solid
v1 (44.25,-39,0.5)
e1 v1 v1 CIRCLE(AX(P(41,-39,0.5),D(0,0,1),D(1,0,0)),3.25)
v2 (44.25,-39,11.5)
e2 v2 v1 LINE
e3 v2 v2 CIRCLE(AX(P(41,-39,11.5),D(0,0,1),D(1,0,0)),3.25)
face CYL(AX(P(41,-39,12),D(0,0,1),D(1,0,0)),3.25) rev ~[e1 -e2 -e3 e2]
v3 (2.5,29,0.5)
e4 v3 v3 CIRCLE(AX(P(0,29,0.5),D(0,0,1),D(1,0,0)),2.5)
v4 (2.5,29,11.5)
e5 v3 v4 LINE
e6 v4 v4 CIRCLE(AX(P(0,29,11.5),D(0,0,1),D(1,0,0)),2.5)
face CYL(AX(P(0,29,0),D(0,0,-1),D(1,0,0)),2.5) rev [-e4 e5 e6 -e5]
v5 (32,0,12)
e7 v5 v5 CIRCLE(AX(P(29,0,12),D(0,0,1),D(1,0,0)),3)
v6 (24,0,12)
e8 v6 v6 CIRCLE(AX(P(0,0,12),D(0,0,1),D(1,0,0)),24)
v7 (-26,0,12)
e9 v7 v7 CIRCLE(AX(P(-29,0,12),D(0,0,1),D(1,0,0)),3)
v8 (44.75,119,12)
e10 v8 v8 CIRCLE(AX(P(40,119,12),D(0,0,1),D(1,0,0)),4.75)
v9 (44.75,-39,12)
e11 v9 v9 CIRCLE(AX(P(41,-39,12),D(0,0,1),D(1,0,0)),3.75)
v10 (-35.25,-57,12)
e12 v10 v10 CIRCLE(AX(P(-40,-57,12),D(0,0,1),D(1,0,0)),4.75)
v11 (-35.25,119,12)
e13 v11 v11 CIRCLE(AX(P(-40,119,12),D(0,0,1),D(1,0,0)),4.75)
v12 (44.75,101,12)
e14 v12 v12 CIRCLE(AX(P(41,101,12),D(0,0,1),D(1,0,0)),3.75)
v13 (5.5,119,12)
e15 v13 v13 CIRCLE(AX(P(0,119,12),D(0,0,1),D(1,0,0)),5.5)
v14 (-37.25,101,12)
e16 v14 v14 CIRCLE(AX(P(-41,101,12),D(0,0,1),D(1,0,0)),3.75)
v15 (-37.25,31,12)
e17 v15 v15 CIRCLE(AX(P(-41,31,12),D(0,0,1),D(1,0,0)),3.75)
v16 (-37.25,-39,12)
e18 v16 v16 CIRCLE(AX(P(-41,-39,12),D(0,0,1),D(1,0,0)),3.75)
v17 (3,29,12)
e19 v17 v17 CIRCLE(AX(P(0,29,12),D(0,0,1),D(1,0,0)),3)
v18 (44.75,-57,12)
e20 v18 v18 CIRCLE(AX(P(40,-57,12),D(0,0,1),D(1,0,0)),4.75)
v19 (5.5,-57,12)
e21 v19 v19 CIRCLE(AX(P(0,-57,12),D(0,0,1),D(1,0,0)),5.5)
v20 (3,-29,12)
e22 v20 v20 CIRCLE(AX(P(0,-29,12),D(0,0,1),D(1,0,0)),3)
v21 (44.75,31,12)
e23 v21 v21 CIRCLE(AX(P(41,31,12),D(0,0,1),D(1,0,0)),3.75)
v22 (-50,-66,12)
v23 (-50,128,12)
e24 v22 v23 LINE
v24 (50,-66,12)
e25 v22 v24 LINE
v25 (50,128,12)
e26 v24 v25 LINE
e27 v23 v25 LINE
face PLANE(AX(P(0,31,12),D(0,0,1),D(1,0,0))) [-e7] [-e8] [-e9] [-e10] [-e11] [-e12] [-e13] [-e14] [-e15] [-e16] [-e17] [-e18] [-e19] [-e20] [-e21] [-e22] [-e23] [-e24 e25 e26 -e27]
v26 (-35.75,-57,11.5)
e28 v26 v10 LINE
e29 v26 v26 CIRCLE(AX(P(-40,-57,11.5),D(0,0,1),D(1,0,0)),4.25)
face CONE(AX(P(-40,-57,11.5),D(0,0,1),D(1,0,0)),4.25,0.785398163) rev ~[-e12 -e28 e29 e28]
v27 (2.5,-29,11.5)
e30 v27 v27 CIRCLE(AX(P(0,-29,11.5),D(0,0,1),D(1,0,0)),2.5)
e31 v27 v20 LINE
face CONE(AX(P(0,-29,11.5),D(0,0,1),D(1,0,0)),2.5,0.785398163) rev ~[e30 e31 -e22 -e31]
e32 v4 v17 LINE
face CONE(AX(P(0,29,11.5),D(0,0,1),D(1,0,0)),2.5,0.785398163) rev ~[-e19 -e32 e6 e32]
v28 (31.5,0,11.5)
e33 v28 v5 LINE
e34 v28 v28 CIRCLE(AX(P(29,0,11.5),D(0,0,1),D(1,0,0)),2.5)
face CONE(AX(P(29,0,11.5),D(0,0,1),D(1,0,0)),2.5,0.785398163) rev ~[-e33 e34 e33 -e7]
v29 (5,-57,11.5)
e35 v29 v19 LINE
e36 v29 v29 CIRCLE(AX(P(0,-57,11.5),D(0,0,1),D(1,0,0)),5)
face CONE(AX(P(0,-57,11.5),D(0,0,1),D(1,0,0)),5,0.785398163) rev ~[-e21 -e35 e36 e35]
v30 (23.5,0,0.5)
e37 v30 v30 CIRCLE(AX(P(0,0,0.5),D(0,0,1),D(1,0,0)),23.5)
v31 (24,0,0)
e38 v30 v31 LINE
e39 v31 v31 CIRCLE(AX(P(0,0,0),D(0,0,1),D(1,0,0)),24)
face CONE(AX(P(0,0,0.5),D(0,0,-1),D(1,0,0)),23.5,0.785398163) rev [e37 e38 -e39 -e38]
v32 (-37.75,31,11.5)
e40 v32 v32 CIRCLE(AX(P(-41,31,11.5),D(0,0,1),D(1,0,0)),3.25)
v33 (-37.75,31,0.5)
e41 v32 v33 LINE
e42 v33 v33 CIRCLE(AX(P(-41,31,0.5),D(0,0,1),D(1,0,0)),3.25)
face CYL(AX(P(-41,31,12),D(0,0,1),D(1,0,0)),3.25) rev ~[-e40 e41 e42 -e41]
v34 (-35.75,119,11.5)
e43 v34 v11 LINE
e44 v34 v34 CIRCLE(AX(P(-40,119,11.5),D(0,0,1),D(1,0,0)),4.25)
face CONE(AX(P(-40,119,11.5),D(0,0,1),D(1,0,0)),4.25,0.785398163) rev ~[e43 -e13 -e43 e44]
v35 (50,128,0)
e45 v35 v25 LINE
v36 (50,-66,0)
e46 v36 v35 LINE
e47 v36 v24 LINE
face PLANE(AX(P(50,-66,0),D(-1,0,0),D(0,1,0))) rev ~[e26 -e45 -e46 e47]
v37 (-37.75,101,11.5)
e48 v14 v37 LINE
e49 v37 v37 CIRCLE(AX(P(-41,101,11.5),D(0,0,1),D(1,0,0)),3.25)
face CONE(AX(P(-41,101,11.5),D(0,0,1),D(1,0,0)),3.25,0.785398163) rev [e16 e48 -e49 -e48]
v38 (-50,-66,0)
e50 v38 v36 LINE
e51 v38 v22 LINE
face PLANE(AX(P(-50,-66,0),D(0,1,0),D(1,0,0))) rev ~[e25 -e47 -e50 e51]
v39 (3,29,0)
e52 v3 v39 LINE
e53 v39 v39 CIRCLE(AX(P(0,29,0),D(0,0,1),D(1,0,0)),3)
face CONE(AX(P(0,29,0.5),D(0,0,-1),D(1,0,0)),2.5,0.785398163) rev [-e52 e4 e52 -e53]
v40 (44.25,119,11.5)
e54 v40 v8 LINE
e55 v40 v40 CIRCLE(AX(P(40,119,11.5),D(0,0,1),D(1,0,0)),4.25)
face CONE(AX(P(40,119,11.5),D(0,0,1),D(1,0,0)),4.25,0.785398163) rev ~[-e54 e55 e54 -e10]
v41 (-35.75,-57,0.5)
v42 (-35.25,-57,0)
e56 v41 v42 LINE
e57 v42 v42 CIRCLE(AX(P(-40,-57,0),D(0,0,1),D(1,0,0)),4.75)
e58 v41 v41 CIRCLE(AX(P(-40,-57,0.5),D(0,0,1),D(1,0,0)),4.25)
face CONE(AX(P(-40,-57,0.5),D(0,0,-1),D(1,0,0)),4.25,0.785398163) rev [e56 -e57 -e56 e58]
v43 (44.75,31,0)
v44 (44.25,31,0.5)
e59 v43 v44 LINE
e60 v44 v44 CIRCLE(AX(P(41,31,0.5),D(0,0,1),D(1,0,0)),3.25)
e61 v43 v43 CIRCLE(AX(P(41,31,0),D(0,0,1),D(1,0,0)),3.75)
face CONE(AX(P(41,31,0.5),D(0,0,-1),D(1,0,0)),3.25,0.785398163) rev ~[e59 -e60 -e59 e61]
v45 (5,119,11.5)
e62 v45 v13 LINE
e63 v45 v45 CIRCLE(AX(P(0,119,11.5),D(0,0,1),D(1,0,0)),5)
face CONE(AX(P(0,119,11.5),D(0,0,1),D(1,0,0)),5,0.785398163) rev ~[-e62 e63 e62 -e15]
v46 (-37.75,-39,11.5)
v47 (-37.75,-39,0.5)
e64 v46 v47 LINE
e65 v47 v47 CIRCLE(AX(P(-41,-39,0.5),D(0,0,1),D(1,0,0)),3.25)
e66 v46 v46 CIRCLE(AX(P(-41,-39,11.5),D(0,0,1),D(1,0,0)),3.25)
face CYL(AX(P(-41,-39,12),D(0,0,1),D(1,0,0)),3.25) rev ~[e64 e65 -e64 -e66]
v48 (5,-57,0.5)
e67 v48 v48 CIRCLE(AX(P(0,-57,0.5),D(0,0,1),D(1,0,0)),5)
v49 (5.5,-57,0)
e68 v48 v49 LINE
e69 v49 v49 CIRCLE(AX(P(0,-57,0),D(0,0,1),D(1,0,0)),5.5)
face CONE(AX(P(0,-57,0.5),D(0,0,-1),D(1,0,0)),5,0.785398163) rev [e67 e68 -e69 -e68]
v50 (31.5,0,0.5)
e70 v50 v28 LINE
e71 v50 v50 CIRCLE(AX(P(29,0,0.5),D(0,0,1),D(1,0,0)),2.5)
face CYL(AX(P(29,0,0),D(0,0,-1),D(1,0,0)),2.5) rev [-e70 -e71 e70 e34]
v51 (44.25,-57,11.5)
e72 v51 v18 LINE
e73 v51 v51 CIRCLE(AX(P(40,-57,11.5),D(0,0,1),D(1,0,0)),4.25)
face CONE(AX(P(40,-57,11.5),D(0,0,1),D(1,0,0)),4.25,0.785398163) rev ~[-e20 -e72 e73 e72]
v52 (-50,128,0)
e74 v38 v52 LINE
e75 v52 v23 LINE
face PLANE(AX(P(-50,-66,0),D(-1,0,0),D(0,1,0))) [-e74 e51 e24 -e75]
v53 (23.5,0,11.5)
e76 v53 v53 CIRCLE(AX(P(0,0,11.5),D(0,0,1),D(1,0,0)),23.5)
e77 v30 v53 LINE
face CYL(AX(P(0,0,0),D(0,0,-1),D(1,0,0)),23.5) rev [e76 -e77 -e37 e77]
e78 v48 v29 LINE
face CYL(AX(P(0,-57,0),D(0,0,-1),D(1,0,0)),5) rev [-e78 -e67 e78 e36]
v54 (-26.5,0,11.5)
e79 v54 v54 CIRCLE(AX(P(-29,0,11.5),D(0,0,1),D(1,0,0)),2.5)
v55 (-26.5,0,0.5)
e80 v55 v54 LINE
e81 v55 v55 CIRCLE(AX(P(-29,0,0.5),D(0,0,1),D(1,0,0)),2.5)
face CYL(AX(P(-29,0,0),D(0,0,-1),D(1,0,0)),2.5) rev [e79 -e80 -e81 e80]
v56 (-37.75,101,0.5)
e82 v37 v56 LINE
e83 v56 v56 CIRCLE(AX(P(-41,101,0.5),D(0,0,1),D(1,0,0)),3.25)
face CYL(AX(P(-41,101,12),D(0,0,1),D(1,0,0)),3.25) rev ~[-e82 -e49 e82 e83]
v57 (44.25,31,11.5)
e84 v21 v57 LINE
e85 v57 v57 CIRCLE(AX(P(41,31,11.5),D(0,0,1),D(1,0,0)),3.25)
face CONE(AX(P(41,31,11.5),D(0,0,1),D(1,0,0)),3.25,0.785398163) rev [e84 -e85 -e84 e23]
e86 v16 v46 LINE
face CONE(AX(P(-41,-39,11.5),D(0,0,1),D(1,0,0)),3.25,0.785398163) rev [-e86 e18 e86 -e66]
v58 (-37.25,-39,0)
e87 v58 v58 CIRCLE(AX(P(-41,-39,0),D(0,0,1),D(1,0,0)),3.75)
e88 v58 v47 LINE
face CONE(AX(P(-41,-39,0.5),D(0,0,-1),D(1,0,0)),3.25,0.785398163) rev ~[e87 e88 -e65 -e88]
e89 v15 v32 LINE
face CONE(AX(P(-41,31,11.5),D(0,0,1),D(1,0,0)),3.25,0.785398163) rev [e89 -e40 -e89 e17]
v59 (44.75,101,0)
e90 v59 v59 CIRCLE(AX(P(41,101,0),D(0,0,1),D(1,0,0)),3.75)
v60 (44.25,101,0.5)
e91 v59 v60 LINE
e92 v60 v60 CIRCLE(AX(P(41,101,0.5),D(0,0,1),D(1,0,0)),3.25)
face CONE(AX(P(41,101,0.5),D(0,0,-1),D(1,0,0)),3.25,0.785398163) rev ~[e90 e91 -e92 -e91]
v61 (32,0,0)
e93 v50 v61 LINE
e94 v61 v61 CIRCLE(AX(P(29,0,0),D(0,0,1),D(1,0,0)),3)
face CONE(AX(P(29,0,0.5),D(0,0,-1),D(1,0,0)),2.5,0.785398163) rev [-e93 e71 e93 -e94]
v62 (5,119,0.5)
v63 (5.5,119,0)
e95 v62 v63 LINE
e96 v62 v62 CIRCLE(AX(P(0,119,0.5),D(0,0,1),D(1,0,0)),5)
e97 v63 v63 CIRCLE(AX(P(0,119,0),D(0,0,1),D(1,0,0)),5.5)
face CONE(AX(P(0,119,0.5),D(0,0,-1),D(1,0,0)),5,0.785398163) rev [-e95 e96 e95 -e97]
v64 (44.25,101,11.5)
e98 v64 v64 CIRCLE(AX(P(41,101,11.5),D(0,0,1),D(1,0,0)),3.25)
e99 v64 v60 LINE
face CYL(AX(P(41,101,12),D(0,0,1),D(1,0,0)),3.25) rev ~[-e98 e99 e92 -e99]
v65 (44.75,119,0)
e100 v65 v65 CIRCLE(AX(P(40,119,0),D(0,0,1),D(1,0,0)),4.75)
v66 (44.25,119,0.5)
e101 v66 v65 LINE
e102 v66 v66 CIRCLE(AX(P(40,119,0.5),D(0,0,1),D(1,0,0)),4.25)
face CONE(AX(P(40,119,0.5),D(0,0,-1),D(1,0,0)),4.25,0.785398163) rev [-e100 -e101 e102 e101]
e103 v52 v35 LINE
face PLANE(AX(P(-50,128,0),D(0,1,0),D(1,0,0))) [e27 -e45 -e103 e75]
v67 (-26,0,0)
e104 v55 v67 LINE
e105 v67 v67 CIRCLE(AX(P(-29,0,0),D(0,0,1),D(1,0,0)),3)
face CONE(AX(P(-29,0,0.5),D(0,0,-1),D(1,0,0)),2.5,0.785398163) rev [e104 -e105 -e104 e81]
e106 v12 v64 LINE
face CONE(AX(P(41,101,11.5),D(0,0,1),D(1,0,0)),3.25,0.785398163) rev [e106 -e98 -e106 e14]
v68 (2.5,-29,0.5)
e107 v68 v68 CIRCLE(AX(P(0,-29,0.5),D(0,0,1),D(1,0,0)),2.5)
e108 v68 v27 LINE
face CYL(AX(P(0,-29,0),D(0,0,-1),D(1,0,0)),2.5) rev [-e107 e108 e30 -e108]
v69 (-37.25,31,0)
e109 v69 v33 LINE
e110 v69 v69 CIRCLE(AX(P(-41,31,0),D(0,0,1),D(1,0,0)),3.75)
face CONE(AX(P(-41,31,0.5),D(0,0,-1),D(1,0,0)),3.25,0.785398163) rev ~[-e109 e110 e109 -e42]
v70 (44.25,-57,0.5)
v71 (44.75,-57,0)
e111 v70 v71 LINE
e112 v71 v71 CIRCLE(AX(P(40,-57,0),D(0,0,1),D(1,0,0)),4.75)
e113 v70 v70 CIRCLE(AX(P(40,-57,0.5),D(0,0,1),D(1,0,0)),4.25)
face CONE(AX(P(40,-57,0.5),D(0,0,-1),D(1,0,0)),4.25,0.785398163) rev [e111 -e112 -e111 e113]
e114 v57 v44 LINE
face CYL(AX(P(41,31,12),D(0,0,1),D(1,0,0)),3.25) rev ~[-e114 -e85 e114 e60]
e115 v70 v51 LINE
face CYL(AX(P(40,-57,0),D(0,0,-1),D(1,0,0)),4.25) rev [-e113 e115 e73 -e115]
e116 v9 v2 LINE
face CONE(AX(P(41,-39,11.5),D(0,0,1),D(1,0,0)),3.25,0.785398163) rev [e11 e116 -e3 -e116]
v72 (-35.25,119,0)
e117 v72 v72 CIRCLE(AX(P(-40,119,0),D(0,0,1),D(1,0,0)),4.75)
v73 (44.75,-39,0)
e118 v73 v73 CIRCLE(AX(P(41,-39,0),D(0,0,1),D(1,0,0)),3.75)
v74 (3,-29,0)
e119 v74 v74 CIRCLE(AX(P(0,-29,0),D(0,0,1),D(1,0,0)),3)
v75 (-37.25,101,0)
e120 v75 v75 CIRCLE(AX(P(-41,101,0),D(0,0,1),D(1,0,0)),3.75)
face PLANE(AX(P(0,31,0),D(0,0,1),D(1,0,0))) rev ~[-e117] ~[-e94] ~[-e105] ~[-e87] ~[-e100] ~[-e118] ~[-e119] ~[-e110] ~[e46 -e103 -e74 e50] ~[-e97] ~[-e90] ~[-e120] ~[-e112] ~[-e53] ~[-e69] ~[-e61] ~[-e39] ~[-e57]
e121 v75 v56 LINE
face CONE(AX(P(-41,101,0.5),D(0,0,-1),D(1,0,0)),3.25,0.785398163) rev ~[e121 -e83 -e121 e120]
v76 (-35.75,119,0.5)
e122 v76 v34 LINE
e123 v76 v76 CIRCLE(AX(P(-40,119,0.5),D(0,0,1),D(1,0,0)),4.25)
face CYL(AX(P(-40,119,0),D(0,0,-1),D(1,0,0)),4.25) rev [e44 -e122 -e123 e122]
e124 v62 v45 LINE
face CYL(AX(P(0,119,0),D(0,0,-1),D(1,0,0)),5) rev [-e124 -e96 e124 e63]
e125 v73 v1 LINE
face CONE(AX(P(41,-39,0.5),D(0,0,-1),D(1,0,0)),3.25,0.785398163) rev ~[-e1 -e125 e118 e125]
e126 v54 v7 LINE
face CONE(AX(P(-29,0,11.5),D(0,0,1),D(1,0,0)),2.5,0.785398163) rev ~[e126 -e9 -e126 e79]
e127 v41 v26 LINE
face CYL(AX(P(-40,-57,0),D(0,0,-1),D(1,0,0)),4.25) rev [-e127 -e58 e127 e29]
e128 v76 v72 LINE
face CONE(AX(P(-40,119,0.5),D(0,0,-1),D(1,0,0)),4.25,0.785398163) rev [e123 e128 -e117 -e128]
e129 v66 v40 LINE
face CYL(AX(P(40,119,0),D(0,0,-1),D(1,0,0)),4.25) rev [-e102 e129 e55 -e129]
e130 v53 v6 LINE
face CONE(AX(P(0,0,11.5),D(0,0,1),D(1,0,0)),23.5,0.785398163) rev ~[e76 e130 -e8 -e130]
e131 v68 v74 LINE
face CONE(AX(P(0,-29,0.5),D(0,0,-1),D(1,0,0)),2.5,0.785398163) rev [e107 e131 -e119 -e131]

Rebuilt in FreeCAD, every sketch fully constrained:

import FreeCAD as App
import Part
import Sketcher
Q = App.Units.Quantity


def edges_at(feature, points):
    """Names of the edges that pass closest to the given points."""
    edges = feature.Shape.Edges
    near = lambda p: min(range(len(edges)), key=lambda i: edges[i].distToShape(Part.Vertex(*p))[0])
    return sorted({f"Edge{near(p) + 1}" for p in points})


def add_polygon(sketch, points):
    """Adds a closed chain of lines whose ends are joined by coincident constraints."""
    first, n = sketch.GeometryCount, len(points)
    for a, b in zip(points, points[1:] + points[:1]):
        sketch.addGeometry(Part.LineSegment(App.Vector(*a, 0), App.Vector(*b, 0)), False)
    for i in range(n):
        sketch.addConstraint(Sketcher.Constraint("Coincident", first + i, 2, first + (i + 1) % n, 1))

doc = App.newDocument("Part")
body = doc.addObject("PartDesign::Body", "Body")

sketch1 = doc.addObject("Sketcher::SketchObject", "Sketch")
body.addObject(sketch1)
sketch1.AttachmentSupport = (doc.XY_Plane, [""])
sketch1.MapMode = "FlatFace"
add_polygon(sketch1, [(-50, 128), (-50, -66), (50, -66), (50, 128)])
sketch1.addGeometry(Part.Circle(App.Vector(-40, -57, 0), App.Vector(0, 0, 1), 4.2), False)
sketch1.addGeometry(Part.Circle(App.Vector(-29, 0, 0), App.Vector(0, 0, 1), 2.5), False)
sketch1.addGeometry(Part.Circle(App.Vector(0, -57, 0), App.Vector(0, 0, 1), 5), False)
sketch1.addGeometry(Part.Circle(App.Vector(0, -29, 0), App.Vector(0, 0, 1), 2.5), False)
sketch1.addGeometry(Part.Circle(App.Vector(40, -57, 0), App.Vector(0, 0, 1), 4.2), False)
sketch1.addGeometry(Part.Circle(App.Vector(0, 0, 0), App.Vector(0, 0, 1), 23.5), False)
sketch1.addGeometry(Part.Circle(App.Vector(0, 29, 0), App.Vector(0, 0, 1), 2.5), False)
sketch1.addGeometry(Part.Circle(App.Vector(29, 0, 0), App.Vector(0, 0, 1), 2.5), False)
sketch1.addGeometry(Part.Circle(App.Vector(-40, 119, 0), App.Vector(0, 0, 1), 4.2), False)
sketch1.addGeometry(Part.Circle(App.Vector(0, 119, 0), App.Vector(0, 0, 1), 5), False)
sketch1.addGeometry(Part.Circle(App.Vector(40, 119, 0), App.Vector(0, 0, 1), 4.2), False)
sketch1.addConstraint(Sketcher.Constraint("Vertical", 0))
sketch1.addConstraint(Sketcher.Constraint("Horizontal", 1))
sketch1.addConstraint(Sketcher.Constraint("Vertical", 2))
sketch1.addConstraint(Sketcher.Constraint("Horizontal", 3))
sketch1.addConstraint(Sketcher.Constraint("Coincident", 9, 3, -1, 1))
sketch1.addConstraint(Sketcher.Constraint("Equal", 5, 7))
sketch1.addConstraint(Sketcher.Constraint("Equal", 4, 8))
sketch1.addConstraint(Sketcher.Constraint("Equal", 7, 10))
sketch1.addConstraint(Sketcher.Constraint("Equal", 10, 11))
sketch1.addConstraint(Sketcher.Constraint("Equal", 8, 12))
sketch1.addConstraint(Sketcher.Constraint("Equal", 6, 13))
sketch1.addConstraint(Sketcher.Constraint("Equal", 12, 14))
sketch1.addConstraint(Sketcher.Constraint("Symmetric", 7, 3, 10, 3, -1, 1))
sketch1.addConstraint(Sketcher.Constraint("Symmetric", 5, 3, 11, 3, -1, 1))
sketch1.addConstraint(Sketcher.Constraint("Symmetric", 4, 3, 8, 3, -2))
sketch1.addConstraint(Sketcher.Constraint("Symmetric", 12, 3, 14, 3, -2))
sketch1.addConstraint(Sketcher.Constraint("PointOnObject", 5, 3, -1))
sketch1.addConstraint(Sketcher.Constraint("PointOnObject", 6, 3, -2))
sketch1.addConstraint(Sketcher.Constraint("PointOnObject", 7, 3, -2))
sketch1.addConstraint(Sketcher.Constraint("PointOnObject", 13, 3, -2))
sketch1.addConstraint(Sketcher.Constraint("Horizontal", 4, 3, 6, 3))
sketch1.addConstraint(Sketcher.Constraint("Horizontal", 12, 3, 13, 3))
sketch1.addConstraint(Sketcher.Constraint("Vertical", 4, 3, 12, 3))
sketch1.addConstraint(Sketcher.Constraint("Diameter", 5, Q("5 mm")))
sketch1.addConstraint(Sketcher.Constraint("Diameter", 6, Q("10 mm")))
sketch1.addConstraint(Sketcher.Constraint("Diameter", 9, Q("47 mm")))
sketch1.addConstraint(Sketcher.Constraint("Diameter", 4, Q("8.5 mm")))
sketch1.addConstraint(Sketcher.Constraint("DistanceX", 1, 1, 1, 2, Q("100 mm")))
sketch1.addConstraint(Sketcher.Constraint("DistanceY", 0, 2, 0, 1, Q("194 mm")))
sketch1.addConstraint(Sketcher.Constraint("DistanceX", 4, 3, -1, 1, Q("40 mm")))
sketch1.addConstraint(Sketcher.Constraint("DistanceY", 4, 3, -1, 1, Q("57 mm")))
sketch1.addConstraint(Sketcher.Constraint("DistanceX", 5, 3, -1, 1, Q("29 mm")))
sketch1.addConstraint(Sketcher.Constraint("DistanceY", 7, 3, -1, 1, Q("29 mm")))
sketch1.addConstraint(Sketcher.Constraint("DistanceY", -1, 1, 12, 3, Q("119 mm")))
sketch1.addConstraint(Sketcher.Constraint("DistanceX", 0, 2, -1, 1, Q("50 mm")))
sketch1.addConstraint(Sketcher.Constraint("DistanceY", 0, 2, -1, 1, Q("66 mm")))
pad1 = doc.addObject("PartDesign::Pad", "Pad")
body.addObject(pad1)
pad1.Profile = sketch1
pad1.Length = 12
doc.recompute()

chamfer = doc.addObject("PartDesign::Chamfer", "Chamfer")
body.addObject(chamfer)
chamfer.Base = (pad1, edges_at(pad1, [
    (-35.75, 119, 6),
    (-44.25, 119, 0),
    (-44.25, 119, 12),
    (5, 119, 6),
    (-5, 119, 0),
    (-5, 119, 12),
    (44.25, 119, 6),
    (35.75, 119, 0),
    (35.75, 119, 12),
    (23.5, 0, 6),
    (-23.5, 0, 0),
    (-23.5, 0, 12),
    (-35.75, -57, 6),
    (-44.25, -57, 0),
    (-44.25, -57, 12),
    (5, -57, 6),
    (-5, -57, 0),
    (-5, -57, 12),
    (44.25, -57, 6),
    (35.75, -57, 0),
    (35.75, -57, 12),
    (2.5, 29, 6),
    (-2.5, 29, 0),
    (-2.5, 29, 12),
    (-26.5, 0, 6),
    (-31.5, 0, 0),
    (-31.5, 0, 12),
    (2.5, -29, 6),
    (-2.5, -29, 0),
    (-2.5, -29, 12),
    (31.5, 0, 6),
    (26.5, 0, 0),
    (26.5, 0, 12),
]))
chamfer.Size = 0.5

sketch2 = doc.addObject("Sketcher::SketchObject", "Sketch001")
body.addObject(sketch2)
sketch2.AttachmentSupport = (doc.XY_Plane, [""])
sketch2.MapMode = "FlatFace"
sketch2.AttachmentOffset = App.Placement(App.Vector(0, 0, 12), App.Rotation())
sketch2.addGeometry(Part.Circle(App.Vector(-41, 31, 0), App.Vector(0, 0, 1), 3.2), False)
sketch2.addGeometry(Part.Circle(App.Vector(41, 31, 0), App.Vector(0, 0, 1), 3.2), False)
sketch2.addGeometry(Part.Circle(App.Vector(41, 101, 0), App.Vector(0, 0, 1), 3.2), False)
sketch2.addGeometry(Part.Circle(App.Vector(-41, 101, 0), App.Vector(0, 0, 1), 3.2), False)
sketch2.addGeometry(Part.Circle(App.Vector(41, -39, 0), App.Vector(0, 0, 1), 3.2), False)
sketch2.addGeometry(Part.Circle(App.Vector(-41, -39, 0), App.Vector(0, 0, 1), 3.2), False)
sketch2.addConstraint(Sketcher.Constraint("Equal", 0, 1))
sketch2.addConstraint(Sketcher.Constraint("Equal", 1, 2))
sketch2.addConstraint(Sketcher.Constraint("Equal", 2, 3))
sketch2.addConstraint(Sketcher.Constraint("Equal", 3, 4))
sketch2.addConstraint(Sketcher.Constraint("Equal", 4, 5))
sketch2.addConstraint(Sketcher.Constraint("Symmetric", 0, 3, 1, 3, -2))
sketch2.addConstraint(Sketcher.Constraint("Symmetric", 2, 3, 3, 3, -2))
sketch2.addConstraint(Sketcher.Constraint("Symmetric", 4, 3, 5, 3, -2))
sketch2.addConstraint(Sketcher.Constraint("Vertical", 1, 3, 2, 3))
sketch2.addConstraint(Sketcher.Constraint("Vertical", 2, 3, 4, 3))
sketch2.addConstraint(Sketcher.Constraint("Diameter", 0, Q("6.5 mm")))
sketch2.addConstraint(Sketcher.Constraint("DistanceX", 0, 3, -1, 1, Q("41 mm")))
sketch2.addConstraint(Sketcher.Constraint("DistanceY", -1, 1, 0, 3, Q("31 mm")))
sketch2.addConstraint(Sketcher.Constraint("DistanceY", -1, 1, 2, 3, Q("101 mm")))
sketch2.addConstraint(Sketcher.Constraint("DistanceY", 4, 3, -1, 1, Q("39 mm")))
pocket1 = doc.addObject("PartDesign::Pocket", "Pocket")
body.addObject(pocket1)
pocket1.Profile = sketch2
pocket1.Length = 25
doc.recompute()

chamfer2 = doc.addObject("PartDesign::Chamfer", "Chamfer001")
body.addObject(chamfer2)
chamfer2.Base = (pocket1, edges_at(pocket1, [
    (-44.25, 101, 12),
    (-37.75, 101, 6),
    (-44.25, 101, 0),
    (37.75, 101, 12),
    (44.25, 101, 6),
    (37.75, 101, 0),
    (37.75, 31, 12),
    (44.25, 31, 6),
    (37.75, 31, 0),
    (-44.25, 31, 12),
    (-37.75, 31, 6),
    (-44.25, 31, 0),
    (-44.25, -39, 12),
    (-37.75, -39, 6),
    (-44.25, -39, 0),
    (37.75, -39, 12),
    (44.25, -39, 6),
    (37.75, -39, 0),
]))
chamfer2.Size = 0.5

doc.recompute()
